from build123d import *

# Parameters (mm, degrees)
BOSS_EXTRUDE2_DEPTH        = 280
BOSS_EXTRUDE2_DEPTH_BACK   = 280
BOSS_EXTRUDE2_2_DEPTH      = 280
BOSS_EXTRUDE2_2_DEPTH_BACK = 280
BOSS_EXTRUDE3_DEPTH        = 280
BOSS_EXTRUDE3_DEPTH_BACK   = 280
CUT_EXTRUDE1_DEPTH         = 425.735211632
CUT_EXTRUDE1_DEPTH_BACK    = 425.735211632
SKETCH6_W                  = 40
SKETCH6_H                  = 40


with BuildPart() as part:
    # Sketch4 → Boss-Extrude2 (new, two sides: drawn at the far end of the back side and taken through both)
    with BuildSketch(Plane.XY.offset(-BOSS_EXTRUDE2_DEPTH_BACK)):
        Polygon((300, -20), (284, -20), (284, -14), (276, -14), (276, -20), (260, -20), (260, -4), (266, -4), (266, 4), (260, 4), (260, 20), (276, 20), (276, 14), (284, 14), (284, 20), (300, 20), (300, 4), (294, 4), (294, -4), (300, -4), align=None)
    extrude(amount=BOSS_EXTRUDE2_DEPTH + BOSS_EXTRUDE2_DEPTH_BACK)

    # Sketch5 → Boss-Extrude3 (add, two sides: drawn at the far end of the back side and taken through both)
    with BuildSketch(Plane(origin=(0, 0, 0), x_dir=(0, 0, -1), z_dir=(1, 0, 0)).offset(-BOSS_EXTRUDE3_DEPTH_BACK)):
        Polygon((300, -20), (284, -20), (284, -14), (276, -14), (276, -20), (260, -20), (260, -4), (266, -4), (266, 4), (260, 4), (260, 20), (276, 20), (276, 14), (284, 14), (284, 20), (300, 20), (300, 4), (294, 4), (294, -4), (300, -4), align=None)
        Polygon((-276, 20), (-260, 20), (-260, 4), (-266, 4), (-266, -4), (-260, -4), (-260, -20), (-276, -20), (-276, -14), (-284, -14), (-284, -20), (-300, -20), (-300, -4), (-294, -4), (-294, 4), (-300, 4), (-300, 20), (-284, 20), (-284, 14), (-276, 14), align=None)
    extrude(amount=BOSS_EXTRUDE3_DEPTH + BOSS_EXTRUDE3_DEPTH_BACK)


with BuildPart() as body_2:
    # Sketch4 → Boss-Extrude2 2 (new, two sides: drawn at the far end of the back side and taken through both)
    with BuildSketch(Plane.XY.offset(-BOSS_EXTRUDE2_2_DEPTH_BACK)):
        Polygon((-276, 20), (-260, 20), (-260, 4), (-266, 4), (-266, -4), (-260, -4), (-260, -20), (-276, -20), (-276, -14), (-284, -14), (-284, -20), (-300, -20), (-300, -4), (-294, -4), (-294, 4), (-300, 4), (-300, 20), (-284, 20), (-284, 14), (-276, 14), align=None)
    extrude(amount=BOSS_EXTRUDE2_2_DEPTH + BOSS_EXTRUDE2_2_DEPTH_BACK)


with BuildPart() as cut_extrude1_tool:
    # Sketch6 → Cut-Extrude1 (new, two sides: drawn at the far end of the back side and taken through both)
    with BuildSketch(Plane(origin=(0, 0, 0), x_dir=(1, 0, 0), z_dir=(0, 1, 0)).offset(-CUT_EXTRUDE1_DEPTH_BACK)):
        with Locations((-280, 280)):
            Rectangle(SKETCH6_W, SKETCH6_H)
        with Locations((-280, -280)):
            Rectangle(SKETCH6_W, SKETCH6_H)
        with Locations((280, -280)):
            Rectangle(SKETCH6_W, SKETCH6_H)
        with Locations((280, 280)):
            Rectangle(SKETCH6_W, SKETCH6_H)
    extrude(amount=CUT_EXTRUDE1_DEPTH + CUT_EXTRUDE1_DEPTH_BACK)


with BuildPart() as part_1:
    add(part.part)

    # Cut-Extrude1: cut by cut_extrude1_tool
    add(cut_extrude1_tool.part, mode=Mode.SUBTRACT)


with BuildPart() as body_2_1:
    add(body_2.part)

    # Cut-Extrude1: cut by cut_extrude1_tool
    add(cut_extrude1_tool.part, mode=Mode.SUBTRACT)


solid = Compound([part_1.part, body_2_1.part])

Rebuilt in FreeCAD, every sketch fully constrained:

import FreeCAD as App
import Part
import Sketcher
from FreeCAD import Vector
Q = App.Units.Quantity

doc = App.newDocument("Part")
params = doc.addObject("Spreadsheet::Sheet", "Params")
for row, (alias, value) in enumerate([
    ("sketch1_width", "16 mm"),
    ("sketch1_width2", "6 mm"),
    ("sketch1_width3", "8 mm"),
    ("pad1_length", "280 mm"),
    ("pad1_length2", "280 mm"),
    ("sketch2_width", "16 mm"),
    ("sketch2_width2", "8 mm"),
    ("sketch2_width3", "6 mm"),
    ("pad2_length", "280 mm"),
    ("pad2_length2", "280 mm"),
    ("sketch3_width", "16 mm"),
    ("sketch3_width2", "8 mm"),
    ("sketch3_width3", "6 mm"),
    ("pad3_length", "280 mm"),
    ("pad3_length2", "280 mm"),
    ("sketch4_width", "40 mm"),
    ("pad4_length", "425.735212 mm"),
    ("pad4_length2", "425.735212 mm"),
], start=1):
    params.set(f"A{row}", alias)
    params.set(f"B{row}", "=" + value)
    params.setAlias(f"B{row}", alias)

body = doc.addObject("PartDesign::Body", "Body")

sketch1 = body.newObject("Sketcher::SketchObject", "Sketch")
sketch1.AttachmentSupport = (doc.getObject("XY_Plane"), [""])
sketch1.MapMode = "FlatFace"
sketch1.addGeometry([
    Part.LineSegment(Vector(284, -20, 0), Vector(300, -20, 0)),
    Part.LineSegment(Vector(300, -20, 0), Vector(300, -4, 0)),
    Part.LineSegment(Vector(300, -4, 0), Vector(294, -4, 0)),
    Part.LineSegment(Vector(294, -4, 0), Vector(294, 4, 0)),
    Part.LineSegment(Vector(294, 4, 0), Vector(300, 4, 0)),
    Part.LineSegment(Vector(300, 4, 0), Vector(300, 20, 0)),
    Part.LineSegment(Vector(300, 20, 0), Vector(284, 20, 0)),
    Part.LineSegment(Vector(284, 20, 0), Vector(284, 14, 0)),
    Part.LineSegment(Vector(284, 14, 0), Vector(276, 14, 0)),
    Part.LineSegment(Vector(276, 14, 0), Vector(276, 20, 0)),
    Part.LineSegment(Vector(276, 20, 0), Vector(260, 20, 0)),
    Part.LineSegment(Vector(260, 20, 0), Vector(260, 4, 0)),
    Part.LineSegment(Vector(260, 4, 0), Vector(266, 4, 0)),
    Part.LineSegment(Vector(266, 4, 0), Vector(266, -4, 0)),
    Part.LineSegment(Vector(266, -4, 0), Vector(260, -4, 0)),
    Part.LineSegment(Vector(260, -4, 0), Vector(260, -20, 0)),
    Part.LineSegment(Vector(260, -20, 0), Vector(276, -20, 0)),
    Part.LineSegment(Vector(276, -20, 0), Vector(276, -14, 0)),
    Part.LineSegment(Vector(276, -14, 0), Vector(284, -14, 0)),
    Part.LineSegment(Vector(284, -14, 0), Vector(284, -20, 0)),
], False)
sketch1.addConstraint([
    Sketcher.Constraint("Coincident", 0, 2, 1, 1),
    Sketcher.Constraint("Coincident", 1, 2, 2, 1),
    Sketcher.Constraint("Coincident", 2, 2, 3, 1),
    Sketcher.Constraint("Coincident", 3, 2, 4, 1),
    Sketcher.Constraint("Coincident", 4, 2, 5, 1),
    Sketcher.Constraint("Coincident", 5, 2, 6, 1),
    Sketcher.Constraint("Coincident", 6, 2, 7, 1),
    Sketcher.Constraint("Coincident", 7, 2, 8, 1),
    Sketcher.Constraint("Coincident", 8, 2, 9, 1),
    Sketcher.Constraint("Coincident", 9, 2, 10, 1),
    Sketcher.Constraint("Coincident", 10, 2, 11, 1),
    Sketcher.Constraint("Coincident", 11, 2, 12, 1),
    Sketcher.Constraint("Coincident", 12, 2, 13, 1),
    Sketcher.Constraint("Coincident", 13, 2, 14, 1),
    Sketcher.Constraint("Coincident", 14, 2, 15, 1),
    Sketcher.Constraint("Coincident", 15, 2, 16, 1),
    Sketcher.Constraint("Coincident", 16, 2, 17, 1),
    Sketcher.Constraint("Coincident", 17, 2, 18, 1),
    Sketcher.Constraint("Coincident", 18, 2, 19, 1),
    Sketcher.Constraint("Coincident", 19, 2, 0, 1),
    Sketcher.Constraint("Horizontal", 0),
    Sketcher.Constraint("Vertical", 1),
    Sketcher.Constraint("Horizontal", 2),
    Sketcher.Constraint("Vertical", 3),
    Sketcher.Constraint("Horizontal", 4),
    Sketcher.Constraint("Vertical", 5),
    Sketcher.Constraint("Horizontal", 6),
    Sketcher.Constraint("Vertical", 7),
    Sketcher.Constraint("Horizontal", 8),
    Sketcher.Constraint("Vertical", 9),
    Sketcher.Constraint("Horizontal", 10),
    Sketcher.Constraint("Vertical", 11),
    Sketcher.Constraint("Horizontal", 12),
    Sketcher.Constraint("Vertical", 13),
    Sketcher.Constraint("Horizontal", 14),
    Sketcher.Constraint("Vertical", 15),
    Sketcher.Constraint("Horizontal", 16),
    Sketcher.Constraint("Vertical", 17),
    Sketcher.Constraint("Horizontal", 18),
    Sketcher.Constraint("Vertical", 19),
    Sketcher.Constraint("Symmetric", 1, 2, 4, 2, -1),
    Sketcher.Constraint("Symmetric", 11, 2, 14, 2, -1),
    Sketcher.Constraint("Symmetric", 9, 2, 16, 2, -1),
    Sketcher.Constraint("Symmetric", 7, 2, 18, 2, -1),
    Sketcher.Constraint("Horizontal", 6, 2, 9, 2),
    Sketcher.Constraint("Horizontal", 4, 2, 11, 2),
    Sketcher.Constraint("Horizontal", 0, 2, 15, 2),
    Sketcher.Constraint("Equal", 6, 10),
    Sketcher.Constraint("Equal", 4, 12),
    Sketcher.Constraint("Equal", 16, 1),
    Sketcher.Constraint("Equal", 18, 3),
    Sketcher.Constraint("Equal", 14, 7),
    Sketcher.Constraint("DistanceX", 0, 1, 0, 2, Q("16 mm")),
    Sketcher.Constraint("DistanceX", 2, 2, 2, 1, Q("6 mm")),
    Sketcher.Constraint("DistanceX", 8, 2, 8, 1, Q("8 mm")),
    Sketcher.Constraint("DistanceX", -1, 1, 0, 2, Q("300 mm")),
])
sketch1.setExpression("Constraints[52]", "Params.sketch1_width")
sketch1.setExpression("Constraints[53]", "Params.sketch1_width2")
sketch1.setExpression("Constraints[54]", "Params.sketch1_width3")
pad1 = body.newObject("PartDesign::Pad", "Pad")
pad1.Profile = sketch1
pad1.Type = "TwoLengths"
pad1.setExpression("Length", "Params.pad1_length")
pad1.setExpression("Length2", "Params.pad1_length2")

sketch2 = body.newObject("Sketcher::SketchObject", "Sketch001")
sketch2.AttachmentSupport = (doc.getObject("YZ_Plane"), [""])
sketch2.MapMode = "FlatFace"
sketch2.addGeometry([
    Part.LineSegment(Vector(-20, -284, 0), Vector(-20, -300, 0)),
    Part.LineSegment(Vector(-20, -300, 0), Vector(-4, -300, 0)),
    Part.LineSegment(Vector(-4, -300, 0), Vector(-4, -294, 0)),
    Part.LineSegment(Vector(-4, -294, 0), Vector(4, -294, 0)),
    Part.LineSegment(Vector(4, -294, 0), Vector(4, -300, 0)),
    Part.LineSegment(Vector(4, -300, 0), Vector(20, -300, 0)),
    Part.LineSegment(Vector(20, -300, 0), Vector(20, -284, 0)),
    Part.LineSegment(Vector(20, -284, 0), Vector(14, -284, 0)),
    Part.LineSegment(Vector(14, -284, 0), Vector(14, -276, 0)),
    Part.LineSegment(Vector(14, -276, 0), Vector(20, -276, 0)),
    Part.LineSegment(Vector(20, -276, 0), Vector(20, -260, 0)),
    Part.LineSegment(Vector(20, -260, 0), Vector(4, -260, 0)),
    Part.LineSegment(Vector(4, -260, 0), Vector(4, -266, 0)),
    Part.LineSegment(Vector(4, -266, 0), Vector(-4, -266, 0)),
    Part.LineSegment(Vector(-4, -266, 0), Vector(-4, -260, 0)),
    Part.LineSegment(Vector(-4, -260, 0), Vector(-20, -260, 0)),
    Part.LineSegment(Vector(-20, -260, 0), Vector(-20, -276, 0)),
    Part.LineSegment(Vector(-20, -276, 0), Vector(-14, -276, 0)),
    Part.LineSegment(Vector(-14, -276, 0), Vector(-14, -284, 0)),
    Part.LineSegment(Vector(-14, -284, 0), Vector(-20, -284, 0)),
    Part.LineSegment(Vector(20, 260, 0), Vector(20, 276, 0)),
    Part.LineSegment(Vector(20, 276, 0), Vector(14, 276, 0)),
    Part.LineSegment(Vector(14, 276, 0), Vector(14, 284, 0)),
    Part.LineSegment(Vector(14, 284, 0), Vector(20, 284, 0)),
    Part.LineSegment(Vector(20, 284, 0), Vector(20, 300, 0)),
    Part.LineSegment(Vector(20, 300, 0), Vector(4, 300, 0)),
    Part.LineSegment(Vector(4, 300, 0), Vector(4, 294, 0)),
    Part.LineSegment(Vector(4, 294, 0), Vector(-4, 294, 0)),
    Part.LineSegment(Vector(-4, 294, 0), Vector(-4, 300, 0)),
    Part.LineSegment(Vector(-4, 300, 0), Vector(-20, 300, 0)),
    Part.LineSegment(Vector(-20, 300, 0), Vector(-20, 284, 0)),
    Part.LineSegment(Vector(-20, 284, 0), Vector(-14, 284, 0)),
    Part.LineSegment(Vector(-14, 284, 0), Vector(-14, 276, 0)),
    Part.LineSegment(Vector(-14, 276, 0), Vector(-20, 276, 0)),
    Part.LineSegment(Vector(-20, 276, 0), Vector(-20, 260, 0)),
    Part.LineSegment(Vector(-20, 260, 0), Vector(-4, 260, 0)),
    Part.LineSegment(Vector(-4, 260, 0), Vector(-4, 266, 0)),
    Part.LineSegment(Vector(-4, 266, 0), Vector(4, 266, 0)),
    Part.LineSegment(Vector(4, 266, 0), Vector(4, 260, 0)),
    Part.LineSegment(Vector(4, 260, 0), Vector(20, 260, 0)),
], False)
sketch2.addConstraint([
    Sketcher.Constraint("Coincident", 0, 2, 1, 1),
    Sketcher.Constraint("Coincident", 1, 2, 2, 1),
    Sketcher.Constraint("Coincident", 2, 2, 3, 1),
    Sketcher.Constraint("Coincident", 3, 2, 4, 1),
    Sketcher.Constraint("Coincident", 4, 2, 5, 1),
    Sketcher.Constraint("Coincident", 5, 2, 6, 1),
    Sketcher.Constraint("Coincident", 6, 2, 7, 1),
    Sketcher.Constraint("Coincident", 7, 2, 8, 1),
    Sketcher.Constraint("Coincident", 8, 2, 9, 1),
    Sketcher.Constraint("Coincident", 9, 2, 10, 1),
    Sketcher.Constraint("Coincident", 10, 2, 11, 1),
    Sketcher.Constraint("Coincident", 11, 2, 12, 1),
    Sketcher.Constraint("Coincident", 12, 2, 13, 1),
    Sketcher.Constraint("Coincident", 13, 2, 14, 1),
    Sketcher.Constraint("Coincident", 14, 2, 15, 1),
    Sketcher.Constraint("Coincident", 15, 2, 16, 1),
    Sketcher.Constraint("Coincident", 16, 2, 17, 1),
    Sketcher.Constraint("Coincident", 17, 2, 18, 1),
    Sketcher.Constraint("Coincident", 18, 2, 19, 1),
    Sketcher.Constraint("Coincident", 19, 2, 0, 1),
    Sketcher.Constraint("Coincident", 20, 2, 21, 1),
    Sketcher.Constraint("Coincident", 21, 2, 22, 1),
    Sketcher.Constraint("Coincident", 22, 2, 23, 1),
    Sketcher.Constraint("Coincident", 23, 2, 24, 1),
    Sketcher.Constraint("Coincident", 24, 2, 25, 1),
    Sketcher.Constraint("Coincident", 25, 2, 26, 1),
    Sketcher.Constraint("Coincident", 26, 2, 27, 1),
    Sketcher.Constraint("Coincident", 27, 2, 28, 1),
    Sketcher.Constraint("Coincident", 28, 2, 29, 1),
    Sketcher.Constraint("Coincident", 29, 2, 30, 1),
    Sketcher.Constraint("Coincident", 30, 2, 31, 1),
    Sketcher.Constraint("Coincident", 31, 2, 32, 1),
    Sketcher.Constraint("Coincident", 32, 2, 33, 1),
    Sketcher.Constraint("Coincident", 33, 2, 34, 1),
    Sketcher.Constraint("Coincident", 34, 2, 35, 1),
    Sketcher.Constraint("Coincident", 35, 2, 36, 1),
    Sketcher.Constraint("Coincident", 36, 2, 37, 1),
    Sketcher.Constraint("Coincident", 37, 2, 38, 1),
    Sketcher.Constraint("Coincident", 38, 2, 39, 1),
    Sketcher.Constraint("Coincident", 39, 2, 20, 1),
    Sketcher.Constraint("Vertical", 0),
    Sketcher.Constraint("Horizontal", 1),
    Sketcher.Constraint("Vertical", 2),
    Sketcher.Constraint("Horizontal", 3),
    Sketcher.Constraint("Vertical", 4),
    Sketcher.Constraint("Horizontal", 5),
    Sketcher.Constraint("Vertical", 6),
    Sketcher.Constraint("Horizontal", 7),
    Sketcher.Constraint("Vertical", 8),
    Sketcher.Constraint("Horizontal", 9),
    Sketcher.Constraint("Vertical", 10),
    Sketcher.Constraint("Horizontal", 11),
    Sketcher.Constraint("Vertical", 12),
    Sketcher.Constraint("Horizontal", 13),
    Sketcher.Constraint("Vertical", 14),
    Sketcher.Constraint("Horizontal", 15),
    Sketcher.Constraint("Vertical", 16),
    Sketcher.Constraint("Horizontal", 17),
    Sketcher.Constraint("Vertical", 18),
    Sketcher.Constraint("Horizontal", 19),
    Sketcher.Constraint("Vertical", 20),
    Sketcher.Constraint("Horizontal", 21),
    Sketcher.Constraint("Vertical", 22),
    Sketcher.Constraint("Horizontal", 23),
    Sketcher.Constraint("Vertical", 24),
    Sketcher.Constraint("Horizontal", 25),
    Sketcher.Constraint("Vertical", 26),
    Sketcher.Constraint("Horizontal", 27),
    Sketcher.Constraint("Vertical", 28),
    Sketcher.Constraint("Horizontal", 29),
    Sketcher.Constraint("Vertical", 30),
    Sketcher.Constraint("Horizontal", 31),
    Sketcher.Constraint("Vertical", 32),
    Sketcher.Constraint("Horizontal", 33),
    Sketcher.Constraint("Vertical", 34),
    Sketcher.Constraint("Horizontal", 35),
    Sketcher.Constraint("Vertical", 36),
    Sketcher.Constraint("Horizontal", 37),
    Sketcher.Constraint("Vertical", 38),
    Sketcher.Constraint("Horizontal", 39),
    Sketcher.Constraint("Symmetric", 16, 2, 20, 2, -1, 1),
    Sketcher.Constraint("Symmetric", 18, 2, 22, 2, -1, 1),
    Sketcher.Constraint("Symmetric", 0, 2, 24, 2, -1, 1),
    Sketcher.Constraint("Symmetric", 2, 2, 26, 2, -1, 1),
    Sketcher.Constraint("Symmetric", 4, 2, 28, 2, -1, 1),
    Sketcher.Constraint("Symmetric", 6, 2, 30, 2, -1, 1),
    Sketcher.Constraint("Symmetric", 8, 2, 32, 2, -1, 1),
    Sketcher.Constraint("Symmetric", 10, 2, 34, 2, -1, 1),
    Sketcher.Constraint("Symmetric", 12, 2, 36, 2, -1, 1),
    Sketcher.Constraint("Symmetric", 14, 2, 38, 2, -1, 1),
    Sketcher.Constraint("Symmetric", 1, 2, 4, 2, -2),
    Sketcher.Constraint("Symmetric", 11, 2, 14, 2, -2),
    Sketcher.Constraint("Symmetric", 9, 2, 16, 2, -2),
    Sketcher.Constraint("Symmetric", 7, 2, 18, 2, -2),
    Sketcher.Constraint("Vertical", 6, 2, 9, 2),
    Sketcher.Constraint("Vertical", 4, 2, 11, 2),
    Sketcher.Constraint("Vertical", 0, 2, 15, 2),
    Sketcher.Constraint("Equal", 39, 0),
    Sketcher.Constraint("Equal", 33, 2),
    Sketcher.Constraint("Equal", 37, 8),
    Sketcher.Constraint("Equal", 6, 10),
    Sketcher.Constraint("Equal", 4, 12),
    Sketcher.Constraint("DistanceX", 1, 1, 1, 2, Q("16 mm")),
    Sketcher.Constraint("DistanceX", 3, 1, 3, 2, Q("8 mm")),
    Sketcher.Constraint("DistanceX", 7, 2, 7, 1, Q("6 mm")),
    Sketcher.Constraint("DistanceY", 0, 2, -1, 1, Q("300 mm")),
])
sketch2.setExpression("Constraints[102]", "Params.sketch2_width")
sketch2.setExpression("Constraints[103]", "Params.sketch2_width2")
sketch2.setExpression("Constraints[104]", "Params.sketch2_width3")
pad2 = body.newObject("PartDesign::Pad", "Pad001")
pad2.Profile = sketch2
pad2.Type = "TwoLengths"
pad2.setExpression("Length", "Params.pad2_length")
pad2.setExpression("Length2", "Params.pad2_length2")
body2 = doc.addObject("PartDesign::Body", "Body001")

sketch3 = body2.newObject("Sketcher::SketchObject", "Sketch002")
sketch3.AttachmentSupport = (doc.getObject("XY_Plane001"), [""])
sketch3.MapMode = "FlatFace"
sketch3.addGeometry([
    Part.LineSegment(Vector(-260, 20, 0), Vector(-276, 20, 0)),
    Part.LineSegment(Vector(-276, 20, 0), Vector(-276, 14, 0)),
    Part.LineSegment(Vector(-276, 14, 0), Vector(-284, 14, 0)),
    Part.LineSegment(Vector(-284, 14, 0), Vector(-284, 20, 0)),
    Part.LineSegment(Vector(-284, 20, 0), Vector(-300, 20, 0)),
    Part.LineSegment(Vector(-300, 20, 0), Vector(-300, 4, 0)),
    Part.LineSegment(Vector(-300, 4, 0), Vector(-294, 4, 0)),
    Part.LineSegment(Vector(-294, 4, 0), Vector(-294, -4, 0)),
    Part.LineSegment(Vector(-294, -4, 0), Vector(-300, -4, 0)),
    Part.LineSegment(Vector(-300, -4, 0), Vector(-300, -20, 0)),
    Part.LineSegment(Vector(-300, -20, 0), Vector(-284, -20, 0)),
    Part.LineSegment(Vector(-284, -20, 0), Vector(-284, -14, 0)),
    Part.LineSegment(Vector(-284, -14, 0), Vector(-276, -14, 0)),
    Part.LineSegment(Vector(-276, -14, 0), Vector(-276, -20, 0)),
    Part.LineSegment(Vector(-276, -20, 0), Vector(-260, -20, 0)),
    Part.LineSegment(Vector(-260, -20, 0), Vector(-260, -4, 0)),
    Part.LineSegment(Vector(-260, -4, 0), Vector(-266, -4, 0)),
    Part.LineSegment(Vector(-266, -4, 0), Vector(-266, 4, 0)),
    Part.LineSegment(Vector(-266, 4, 0), Vector(-260, 4, 0)),
    Part.LineSegment(Vector(-260, 4, 0), Vector(-260, 20, 0)),
], False)
sketch3.addConstraint([
    Sketcher.Constraint("Coincident", 0, 2, 1, 1),
    Sketcher.Constraint("Coincident", 1, 2, 2, 1),
    Sketcher.Constraint("Coincident", 2, 2, 3, 1),
    Sketcher.Constraint("Coincident", 3, 2, 4, 1),
    Sketcher.Constraint("Coincident", 4, 2, 5, 1),
    Sketcher.Constraint("Coincident", 5, 2, 6, 1),
    Sketcher.Constraint("Coincident", 6, 2, 7, 1),
    Sketcher.Constraint("Coincident", 7, 2, 8, 1),
    Sketcher.Constraint("Coincident", 8, 2, 9, 1),
    Sketcher.Constraint("Coincident", 9, 2, 10, 1),
    Sketcher.Constraint("Coincident", 10, 2, 11, 1),
    Sketcher.Constraint("Coincident", 11, 2, 12, 1),
    Sketcher.Constraint("Coincident", 12, 2, 13, 1),
    Sketcher.Constraint("Coincident", 13, 2, 14, 1),
    Sketcher.Constraint("Coincident", 14, 2, 15, 1),
    Sketcher.Constraint("Coincident", 15, 2, 16, 1),
    Sketcher.Constraint("Coincident", 16, 2, 17, 1),
    Sketcher.Constraint("Coincident", 17, 2, 18, 1),
    Sketcher.Constraint("Coincident", 18, 2, 19, 1),
    Sketcher.Constraint("Coincident", 19, 2, 0, 1),
    Sketcher.Constraint("Horizontal", 0),
    Sketcher.Constraint("Vertical", 1),
    Sketcher.Constraint("Horizontal", 2),
    Sketcher.Constraint("Vertical", 3),
    Sketcher.Constraint("Horizontal", 4),
    Sketcher.Constraint("Vertical", 5),
    Sketcher.Constraint("Horizontal", 6),
    Sketcher.Constraint("Vertical", 7),
    Sketcher.Constraint("Horizontal", 8),
    Sketcher.Constraint("Vertical", 9),
    Sketcher.Constraint("Horizontal", 10),
    Sketcher.Constraint("Vertical", 11),
    Sketcher.Constraint("Horizontal", 12),
    Sketcher.Constraint("Vertical", 13),
    Sketcher.Constraint("Horizontal", 14),
    Sketcher.Constraint("Vertical", 15),
    Sketcher.Constraint("Horizontal", 16),
    Sketcher.Constraint("Vertical", 17),
    Sketcher.Constraint("Horizontal", 18),
    Sketcher.Constraint("Vertical", 19),
    Sketcher.Constraint("Symmetric", 5, 2, 8, 2, -1),
    Sketcher.Constraint("Symmetric", 3, 2, 10, 2, -1),
    Sketcher.Constraint("Symmetric", 1, 2, 12, 2, -1),
    Sketcher.Constraint("Symmetric", 15, 2, 18, 2, -1),
    Sketcher.Constraint("Horizontal", 0, 2, 3, 2),
    Sketcher.Constraint("Horizontal", 10, 2, 13, 2),
    Sketcher.Constraint("Horizontal", 8, 2, 15, 2),
    Sketcher.Constraint("Equal", 0, 4),
    Sketcher.Constraint("Equal", 8, 16),
    Sketcher.Constraint("Equal", 18, 1),
    Sketcher.Constraint("Equal", 14, 5),
    Sketcher.Constraint("Equal", 12, 7),
    Sketcher.Constraint("DistanceX", 0, 2, 0, 1, Q("16 mm")),
    Sketcher.Constraint("DistanceX", 2, 2, 2, 1, Q("8 mm")),
    Sketcher.Constraint("DistanceX", 6, 1, 6, 2, Q("6 mm")),
    Sketcher.Constraint("DistanceX", 0, 2, -1, 1, Q("276 mm")),
])
sketch3.setExpression("Constraints[52]", "Params.sketch3_width")
sketch3.setExpression("Constraints[53]", "Params.sketch3_width2")
sketch3.setExpression("Constraints[54]", "Params.sketch3_width3")
pad3 = body2.newObject("PartDesign::Pad", "Pad002")
pad3.Profile = sketch3
pad3.Type = "TwoLengths"
pad3.setExpression("Length", "Params.pad3_length")
pad3.setExpression("Length2", "Params.pad3_length2")
body3 = doc.addObject("PartDesign::Body", "Body002")
body3.AllowCompound = True

sketch4 = body3.newObject("Sketcher::SketchObject", "Sketch003")
sketch4.AttachmentSupport = (doc.getObject("XZ_Plane002"), [""])
sketch4.MapMode = "FlatFace"
sketch4.addGeometry([
    Part.LineSegment(Vector(-300, -300, 0), Vector(-300, -260, 0)),
    Part.LineSegment(Vector(-300, -260, 0), Vector(-260, -260, 0)),
    Part.LineSegment(Vector(-260, -260, 0), Vector(-260, -300, 0)),
    Part.LineSegment(Vector(-260, -300, 0), Vector(-300, -300, 0)),
    Part.LineSegment(Vector(-300, 260, 0), Vector(-300, 300, 0)),
    Part.LineSegment(Vector(-300, 300, 0), Vector(-260, 300, 0)),
    Part.LineSegment(Vector(-260, 300, 0), Vector(-260, 260, 0)),
    Part.LineSegment(Vector(-260, 260, 0), Vector(-300, 260, 0)),
    Part.LineSegment(Vector(260, 260, 0), Vector(260, 300, 0)),
    Part.LineSegment(Vector(260, 300, 0), Vector(300, 300, 0)),
    Part.LineSegment(Vector(300, 300, 0), Vector(300, 260, 0)),
    Part.LineSegment(Vector(300, 260, 0), Vector(260, 260, 0)),
    Part.LineSegment(Vector(260, -300, 0), Vector(260, -260, 0)),
    Part.LineSegment(Vector(260, -260, 0), Vector(300, -260, 0)),
    Part.LineSegment(Vector(300, -260, 0), Vector(300, -300, 0)),
    Part.LineSegment(Vector(300, -300, 0), Vector(260, -300, 0)),
], False)
sketch4.addConstraint([
    Sketcher.Constraint("Coincident", 0, 2, 1, 1),
    Sketcher.Constraint("Coincident", 1, 2, 2, 1),
    Sketcher.Constraint("Coincident", 2, 2, 3, 1),
    Sketcher.Constraint("Coincident", 3, 2, 0, 1),
    Sketcher.Constraint("Coincident", 4, 2, 5, 1),
    Sketcher.Constraint("Coincident", 5, 2, 6, 1),
    Sketcher.Constraint("Coincident", 6, 2, 7, 1),
    Sketcher.Constraint("Coincident", 7, 2, 4, 1),
    Sketcher.Constraint("Coincident", 8, 2, 9, 1),
    Sketcher.Constraint("Coincident", 9, 2, 10, 1),
    Sketcher.Constraint("Coincident", 10, 2, 11, 1),
    Sketcher.Constraint("Coincident", 11, 2, 8, 1),
    Sketcher.Constraint("Coincident", 12, 2, 13, 1),
    Sketcher.Constraint("Coincident", 13, 2, 14, 1),
    Sketcher.Constraint("Coincident", 14, 2, 15, 1),
    Sketcher.Constraint("Coincident", 15, 2, 12, 1),
    Sketcher.Constraint("Vertical", 0),
    Sketcher.Constraint("Horizontal", 1),
    Sketcher.Constraint("Vertical", 2),
    Sketcher.Constraint("Horizontal", 3),
    Sketcher.Constraint("Vertical", 4),
    Sketcher.Constraint("Horizontal", 5),
    Sketcher.Constraint("Vertical", 6),
    Sketcher.Constraint("Horizontal", 7),
    Sketcher.Constraint("Vertical", 8),
    Sketcher.Constraint("Horizontal", 9),
    Sketcher.Constraint("Vertical", 10),
    Sketcher.Constraint("Horizontal", 11),
    Sketcher.Constraint("Vertical", 12),
    Sketcher.Constraint("Horizontal", 13),
    Sketcher.Constraint("Vertical", 14),
    Sketcher.Constraint("Horizontal", 15),
    Sketcher.Constraint("Symmetric", 2, 2, 8, 2, -1, 1),
    Sketcher.Constraint("Symmetric", 0, 2, 10, 2, -1, 1),
    Sketcher.Constraint("Symmetric", 6, 2, 12, 2, -1, 1),
    Sketcher.Constraint("Symmetric", 4, 2, 14, 2, -1, 1),
    Sketcher.Constraint("Symmetric", 5, 2, 8, 2, -2),
    Sketcher.Constraint("Symmetric", 7, 2, 10, 2, -2),
    Sketcher.Constraint("Equal", 15, 0),
    Sketcher.Constraint("DistanceX", 1, 1, 1, 2, Q("40 mm")),
    Sketcher.Constraint("DistanceX", 0, 2, -1, 1, Q("300 mm")),
    Sketcher.Constraint("DistanceY", 0, 2, -1, 1, Q("260 mm")),
])
sketch4.setExpression("Constraints[39]", "Params.sketch4_width")
pad4 = body3.newObject("PartDesign::Pad", "Pad003")
pad4.Profile = sketch4
pad4.Type = "TwoLengths"
pad4.setExpression("Length", "Params.pad4_length")
pad4.setExpression("Length2", "Params.pad4_length2")
pad4.Reversed = True
body.AllowCompound = True
doc.recompute()

body4 = doc.addObject("PartDesign::Body", "Body003")
body4.BaseFeature = body3
boolean = body.newObject("PartDesign::Boolean", "Boolean")
boolean.Type = "Cut"
boolean.addObjects([body4])
doc.recompute()

boolean2 = body2.newObject("PartDesign::Boolean", "Boolean001")
boolean2.Type = "Cut"
boolean2.addObjects([body3])

doc.recompute()
